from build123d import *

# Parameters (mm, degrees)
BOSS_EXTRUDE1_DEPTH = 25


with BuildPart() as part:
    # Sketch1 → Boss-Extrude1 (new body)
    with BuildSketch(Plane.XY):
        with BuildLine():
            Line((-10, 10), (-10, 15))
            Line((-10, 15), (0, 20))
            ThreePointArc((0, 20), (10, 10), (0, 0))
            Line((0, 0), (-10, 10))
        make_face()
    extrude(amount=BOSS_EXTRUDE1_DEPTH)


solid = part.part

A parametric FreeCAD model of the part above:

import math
import FreeCAD as App
import Part
import Sketcher
from FreeCAD import Vector
Q = App.Units.Quantity

doc = App.newDocument("Part")
body = doc.addObject("PartDesign::Body", "Body")

# Sketch on XY plane
sketch1 = doc.addObject("Sketcher::SketchObject", "Sketch")
body.addObject(sketch1)
sketch1.AttachmentSupport = (doc.XY_Plane, [""])
sketch1.MapMode = "FlatFace"
sketch1.addGeometry(Part.LineSegment(Vector(-10, 15, 0), Vector(-10, 10, 0)), False)
sketch1.addGeometry(Part.LineSegment(Vector(-10, 10, 0), Vector(0, 0, 0)), False)
sketch1.addGeometry(Part.ArcOfCircle(Part.Circle(Vector(0, 10, 0), Vector(0, 0, 1), 10), math.radians(-90), math.radians(90)), False)
sketch1.addGeometry(Part.LineSegment(Vector(0, 20, 0), Vector(-10, 15, 0)), False)
sketch1.addConstraint(Sketcher.Constraint("Coincident", 0, 2, 1, 1))
sketch1.addConstraint(Sketcher.Constraint("Coincident", 1, 2, 2, 1))
sketch1.addConstraint(Sketcher.Constraint("Coincident", 2, 2, 3, 1))
sketch1.addConstraint(Sketcher.Constraint("Coincident", 3, 2, 0, 1))
sketch1.addConstraint(Sketcher.Constraint("Vertical", 0))
sketch1.addConstraint(Sketcher.Constraint("Coincident", 1, 2, -1, 1))
sketch1.addConstraint(Sketcher.Constraint("PointOnObject", 2, 3, -2))
sketch1.addConstraint(Sketcher.Constraint("PointOnObject", 2, 2, -2))
sketch1.addConstraint(Sketcher.Constraint("Horizontal", 2, 3, 0, 2))
sketch1.addConstraint(Sketcher.Constraint("Radius", 2, Q("10 mm")))
sketch1.addConstraint(Sketcher.Constraint("DistanceY", 0, 2, 0, 1, Q("5 mm")))
sketch1.addConstraint(Sketcher.Constraint("Angle", 1, Q("-45 deg")))
pad1 = doc.addObject("PartDesign::Pad", "Pad")
body.addObject(pad1)
pad1.Profile = sketch1
pad1.Length = 25

doc.recompute()
